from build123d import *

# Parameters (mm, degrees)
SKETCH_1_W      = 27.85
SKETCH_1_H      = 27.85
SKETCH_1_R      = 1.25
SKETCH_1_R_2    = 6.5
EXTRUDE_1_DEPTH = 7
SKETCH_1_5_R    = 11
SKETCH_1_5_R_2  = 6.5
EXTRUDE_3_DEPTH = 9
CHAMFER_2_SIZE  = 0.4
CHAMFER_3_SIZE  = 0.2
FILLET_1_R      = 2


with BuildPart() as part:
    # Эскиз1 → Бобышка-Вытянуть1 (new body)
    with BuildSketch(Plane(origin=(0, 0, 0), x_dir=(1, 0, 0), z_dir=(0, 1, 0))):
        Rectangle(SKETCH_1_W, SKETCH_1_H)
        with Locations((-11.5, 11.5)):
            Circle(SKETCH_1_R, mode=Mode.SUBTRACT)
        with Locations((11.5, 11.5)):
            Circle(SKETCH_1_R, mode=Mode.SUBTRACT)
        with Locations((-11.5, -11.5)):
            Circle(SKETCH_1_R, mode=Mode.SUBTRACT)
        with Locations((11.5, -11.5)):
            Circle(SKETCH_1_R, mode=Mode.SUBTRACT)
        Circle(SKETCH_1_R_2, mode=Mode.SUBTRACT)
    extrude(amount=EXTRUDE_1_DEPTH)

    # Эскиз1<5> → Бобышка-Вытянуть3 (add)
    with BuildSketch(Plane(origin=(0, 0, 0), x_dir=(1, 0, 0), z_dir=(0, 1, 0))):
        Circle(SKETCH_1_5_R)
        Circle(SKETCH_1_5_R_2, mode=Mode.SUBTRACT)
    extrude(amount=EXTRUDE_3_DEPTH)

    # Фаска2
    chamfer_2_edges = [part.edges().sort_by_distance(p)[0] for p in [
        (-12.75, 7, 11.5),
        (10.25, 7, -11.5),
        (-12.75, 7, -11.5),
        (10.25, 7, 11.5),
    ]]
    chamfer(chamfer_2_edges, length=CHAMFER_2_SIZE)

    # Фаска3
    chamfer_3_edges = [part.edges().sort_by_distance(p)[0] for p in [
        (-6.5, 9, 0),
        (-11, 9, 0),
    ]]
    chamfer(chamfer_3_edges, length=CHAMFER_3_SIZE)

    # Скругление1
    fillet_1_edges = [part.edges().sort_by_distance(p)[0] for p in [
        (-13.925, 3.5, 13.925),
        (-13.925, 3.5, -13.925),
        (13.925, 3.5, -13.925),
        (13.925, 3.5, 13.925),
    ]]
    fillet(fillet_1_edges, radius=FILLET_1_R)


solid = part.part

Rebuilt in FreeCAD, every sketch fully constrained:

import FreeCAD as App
import Part
import Sketcher


def edges_at(feature, points):
    """Names of the edges that pass closest to the given points."""
    edges = feature.Shape.Edges
    near = lambda p: min(range(len(edges)), key=lambda i: edges[i].distToShape(Part.Vertex(*p))[0])
    return sorted({f"Edge{near(p) + 1}" for p in points})

doc = App.newDocument("Part")
params = doc.addObject("Spreadsheet::Sheet", "Params")
for row, (alias, value) in enumerate([
    ("sketch1_diameter", "13 mm"),
    ("sketch1_diameter2", "2.5 mm"),
    ("sketch1_width", "27.85 mm"),
    ("pad1_length", "7 mm"),
    ("sketch2_diameter", "22 mm"),
    ("sketch2_diameter2", "13 mm"),
    ("pad2_length", "9 mm"),
    ("chamfer_size", "0.4 mm"),
    ("chamfer2_size", "0.2 mm"),
    ("fillet_radius", "2 mm"),
], start=1):
    params.set(f"A{row}", alias)
    params.set(f"B{row}", "=" + value)
    params.setAlias(f"B{row}", alias)

body = doc.addObject("PartDesign::Body", "Body")

sketch1 = body.newObject("Sketcher::SketchObject", "Sketch")
sketch1.AttachmentSupport = (doc.getObject("XZ_Plane"), [""])
sketch1.MapMode = "FlatFace"
sketch1.addGeometry([
    Part.LineSegment(App.Vector(-13.9, -13.9, 0), App.Vector(-13.9, 13.9, 0)),
    Part.LineSegment(App.Vector(-13.9, 13.9, 0), App.Vector(13.9, 13.9, 0)),
    Part.LineSegment(App.Vector(13.9, 13.9, 0), App.Vector(13.9, -13.9, 0)),
    Part.LineSegment(App.Vector(13.9, -13.9, 0), App.Vector(-13.9, -13.9, 0)),
    Part.Circle(App.Vector(-11.5, 11.5, 0), App.Vector(0, 0, 1), 1.2),
    Part.Circle(App.Vector(11.5, 11.5, 0), App.Vector(0, 0, 1), 1.2),
    Part.Circle(App.Vector(-11.5, -11.5, 0), App.Vector(0, 0, 1), 1.2),
    Part.Circle(App.Vector(0, 0, 0), App.Vector(0, 0, 1), 6.5),
    Part.Circle(App.Vector(11.5, -11.5, 0), App.Vector(0, 0, 1), 1.2),
], False)
sketch1.addConstraint([
    Sketcher.Constraint("Coincident", 0, 2, 1, 1),
    Sketcher.Constraint("Coincident", 1, 2, 2, 1),
    Sketcher.Constraint("Coincident", 2, 2, 3, 1),
    Sketcher.Constraint("Coincident", 3, 2, 0, 1),
    Sketcher.Constraint("Vertical", 0),
    Sketcher.Constraint("Horizontal", 1),
    Sketcher.Constraint("Vertical", 2),
    Sketcher.Constraint("Horizontal", 3),
    Sketcher.Constraint("Coincident", 7, 3, -1, 1),
    Sketcher.Constraint("Equal", 4, 5),
    Sketcher.Constraint("Equal", 5, 6),
    Sketcher.Constraint("Equal", 6, 8),
    Sketcher.Constraint("Symmetric", 5, 3, 6, 3, -1, 1),
    Sketcher.Constraint("Symmetric", 4, 3, 8, 3, -1, 1),
    Sketcher.Constraint("Symmetric", 0, 2, 2, 2, -1, 1),
    Sketcher.Constraint("Symmetric", 4, 3, 5, 3, -2),
    Sketcher.Constraint("Equal", 3, 0),
    Sketcher.Constraint("Diameter", 7, 13.0),
    Sketcher.Constraint("Diameter", 4, 2.5),
    Sketcher.Constraint("DistanceX", 4, 3, 5, 3, 23.0),
    Sketcher.Constraint("DistanceY", 6, 3, 4, 3, 23.0),
    Sketcher.Constraint("DistanceX", 1, 1, 1, 2, 27.85),
])
sketch1.setExpression("Constraints[17]", "Params.sketch1_diameter")
sketch1.setExpression("Constraints[18]", "Params.sketch1_diameter2")
sketch1.setExpression("Constraints[21]", "Params.sketch1_width")
pad1 = body.newObject("PartDesign::Pad", "Pad")
pad1.Profile = sketch1
pad1.setExpression("Length", "Params.pad1_length")
pad1.Reversed = True

sketch2 = body.newObject("Sketcher::SketchObject", "Sketch001")
sketch2.AttachmentSupport = (doc.getObject("XZ_Plane"), [""])
sketch2.MapMode = "FlatFace"
sketch2.addGeometry([
    Part.Circle(App.Vector(0, 0, 0), App.Vector(0, 0, 1), 11),
    Part.Circle(App.Vector(0, 0, 0), App.Vector(0, 0, 1), 6),
], False)
sketch2.addConstraint([
    Sketcher.Constraint("Coincident", 0, 3, -1, 1),
    Sketcher.Constraint("Coincident", 1, 3, -1, 1),
    Sketcher.Constraint("Diameter", 0, 22.0),
    Sketcher.Constraint("Diameter", 1, 13.0),
])
sketch2.setExpression("Constraints[2]", "Params.sketch2_diameter")
sketch2.setExpression("Constraints[3]", "Params.sketch2_diameter2")
pad2 = body.newObject("PartDesign::Pad", "Pad001")
pad2.Profile = sketch2
pad2.setExpression("Length", "Params.pad2_length")
pad2.Reversed = True
doc.recompute()

chamfer = body.newObject("PartDesign::Chamfer", "Chamfer")
chamfer.Base = (pad2, edges_at(pad2, [
    (-12.75, 7, 11.5),
    (10.25, 7, -11.5),
    (-12.75, 7, -11.5),
    (10.25, 7, 11.5),
]))
chamfer.setExpression("Size", "Params.chamfer_size")
doc.recompute()

chamfer2 = body.newObject("PartDesign::Chamfer", "Chamfer001")
chamfer2.Base = (chamfer, edges_at(chamfer, [(-6.5, 9, 0), (-11, 9, 0)]))
chamfer2.setExpression("Size", "Params.chamfer2_size")
doc.recompute()

fillet = body.newObject("PartDesign::Fillet", "Fillet")
fillet.Base = (chamfer2, edges_at(chamfer2, [
    (-13.925, 3.5, 13.925),
    (-13.925, 3.5, -13.925),
    (13.925, 3.5, -13.925),
    (13.925, 3.5, 13.925),
]))
fillet.setExpression("Radius", "Params.fillet_radius")

doc.recompute()
